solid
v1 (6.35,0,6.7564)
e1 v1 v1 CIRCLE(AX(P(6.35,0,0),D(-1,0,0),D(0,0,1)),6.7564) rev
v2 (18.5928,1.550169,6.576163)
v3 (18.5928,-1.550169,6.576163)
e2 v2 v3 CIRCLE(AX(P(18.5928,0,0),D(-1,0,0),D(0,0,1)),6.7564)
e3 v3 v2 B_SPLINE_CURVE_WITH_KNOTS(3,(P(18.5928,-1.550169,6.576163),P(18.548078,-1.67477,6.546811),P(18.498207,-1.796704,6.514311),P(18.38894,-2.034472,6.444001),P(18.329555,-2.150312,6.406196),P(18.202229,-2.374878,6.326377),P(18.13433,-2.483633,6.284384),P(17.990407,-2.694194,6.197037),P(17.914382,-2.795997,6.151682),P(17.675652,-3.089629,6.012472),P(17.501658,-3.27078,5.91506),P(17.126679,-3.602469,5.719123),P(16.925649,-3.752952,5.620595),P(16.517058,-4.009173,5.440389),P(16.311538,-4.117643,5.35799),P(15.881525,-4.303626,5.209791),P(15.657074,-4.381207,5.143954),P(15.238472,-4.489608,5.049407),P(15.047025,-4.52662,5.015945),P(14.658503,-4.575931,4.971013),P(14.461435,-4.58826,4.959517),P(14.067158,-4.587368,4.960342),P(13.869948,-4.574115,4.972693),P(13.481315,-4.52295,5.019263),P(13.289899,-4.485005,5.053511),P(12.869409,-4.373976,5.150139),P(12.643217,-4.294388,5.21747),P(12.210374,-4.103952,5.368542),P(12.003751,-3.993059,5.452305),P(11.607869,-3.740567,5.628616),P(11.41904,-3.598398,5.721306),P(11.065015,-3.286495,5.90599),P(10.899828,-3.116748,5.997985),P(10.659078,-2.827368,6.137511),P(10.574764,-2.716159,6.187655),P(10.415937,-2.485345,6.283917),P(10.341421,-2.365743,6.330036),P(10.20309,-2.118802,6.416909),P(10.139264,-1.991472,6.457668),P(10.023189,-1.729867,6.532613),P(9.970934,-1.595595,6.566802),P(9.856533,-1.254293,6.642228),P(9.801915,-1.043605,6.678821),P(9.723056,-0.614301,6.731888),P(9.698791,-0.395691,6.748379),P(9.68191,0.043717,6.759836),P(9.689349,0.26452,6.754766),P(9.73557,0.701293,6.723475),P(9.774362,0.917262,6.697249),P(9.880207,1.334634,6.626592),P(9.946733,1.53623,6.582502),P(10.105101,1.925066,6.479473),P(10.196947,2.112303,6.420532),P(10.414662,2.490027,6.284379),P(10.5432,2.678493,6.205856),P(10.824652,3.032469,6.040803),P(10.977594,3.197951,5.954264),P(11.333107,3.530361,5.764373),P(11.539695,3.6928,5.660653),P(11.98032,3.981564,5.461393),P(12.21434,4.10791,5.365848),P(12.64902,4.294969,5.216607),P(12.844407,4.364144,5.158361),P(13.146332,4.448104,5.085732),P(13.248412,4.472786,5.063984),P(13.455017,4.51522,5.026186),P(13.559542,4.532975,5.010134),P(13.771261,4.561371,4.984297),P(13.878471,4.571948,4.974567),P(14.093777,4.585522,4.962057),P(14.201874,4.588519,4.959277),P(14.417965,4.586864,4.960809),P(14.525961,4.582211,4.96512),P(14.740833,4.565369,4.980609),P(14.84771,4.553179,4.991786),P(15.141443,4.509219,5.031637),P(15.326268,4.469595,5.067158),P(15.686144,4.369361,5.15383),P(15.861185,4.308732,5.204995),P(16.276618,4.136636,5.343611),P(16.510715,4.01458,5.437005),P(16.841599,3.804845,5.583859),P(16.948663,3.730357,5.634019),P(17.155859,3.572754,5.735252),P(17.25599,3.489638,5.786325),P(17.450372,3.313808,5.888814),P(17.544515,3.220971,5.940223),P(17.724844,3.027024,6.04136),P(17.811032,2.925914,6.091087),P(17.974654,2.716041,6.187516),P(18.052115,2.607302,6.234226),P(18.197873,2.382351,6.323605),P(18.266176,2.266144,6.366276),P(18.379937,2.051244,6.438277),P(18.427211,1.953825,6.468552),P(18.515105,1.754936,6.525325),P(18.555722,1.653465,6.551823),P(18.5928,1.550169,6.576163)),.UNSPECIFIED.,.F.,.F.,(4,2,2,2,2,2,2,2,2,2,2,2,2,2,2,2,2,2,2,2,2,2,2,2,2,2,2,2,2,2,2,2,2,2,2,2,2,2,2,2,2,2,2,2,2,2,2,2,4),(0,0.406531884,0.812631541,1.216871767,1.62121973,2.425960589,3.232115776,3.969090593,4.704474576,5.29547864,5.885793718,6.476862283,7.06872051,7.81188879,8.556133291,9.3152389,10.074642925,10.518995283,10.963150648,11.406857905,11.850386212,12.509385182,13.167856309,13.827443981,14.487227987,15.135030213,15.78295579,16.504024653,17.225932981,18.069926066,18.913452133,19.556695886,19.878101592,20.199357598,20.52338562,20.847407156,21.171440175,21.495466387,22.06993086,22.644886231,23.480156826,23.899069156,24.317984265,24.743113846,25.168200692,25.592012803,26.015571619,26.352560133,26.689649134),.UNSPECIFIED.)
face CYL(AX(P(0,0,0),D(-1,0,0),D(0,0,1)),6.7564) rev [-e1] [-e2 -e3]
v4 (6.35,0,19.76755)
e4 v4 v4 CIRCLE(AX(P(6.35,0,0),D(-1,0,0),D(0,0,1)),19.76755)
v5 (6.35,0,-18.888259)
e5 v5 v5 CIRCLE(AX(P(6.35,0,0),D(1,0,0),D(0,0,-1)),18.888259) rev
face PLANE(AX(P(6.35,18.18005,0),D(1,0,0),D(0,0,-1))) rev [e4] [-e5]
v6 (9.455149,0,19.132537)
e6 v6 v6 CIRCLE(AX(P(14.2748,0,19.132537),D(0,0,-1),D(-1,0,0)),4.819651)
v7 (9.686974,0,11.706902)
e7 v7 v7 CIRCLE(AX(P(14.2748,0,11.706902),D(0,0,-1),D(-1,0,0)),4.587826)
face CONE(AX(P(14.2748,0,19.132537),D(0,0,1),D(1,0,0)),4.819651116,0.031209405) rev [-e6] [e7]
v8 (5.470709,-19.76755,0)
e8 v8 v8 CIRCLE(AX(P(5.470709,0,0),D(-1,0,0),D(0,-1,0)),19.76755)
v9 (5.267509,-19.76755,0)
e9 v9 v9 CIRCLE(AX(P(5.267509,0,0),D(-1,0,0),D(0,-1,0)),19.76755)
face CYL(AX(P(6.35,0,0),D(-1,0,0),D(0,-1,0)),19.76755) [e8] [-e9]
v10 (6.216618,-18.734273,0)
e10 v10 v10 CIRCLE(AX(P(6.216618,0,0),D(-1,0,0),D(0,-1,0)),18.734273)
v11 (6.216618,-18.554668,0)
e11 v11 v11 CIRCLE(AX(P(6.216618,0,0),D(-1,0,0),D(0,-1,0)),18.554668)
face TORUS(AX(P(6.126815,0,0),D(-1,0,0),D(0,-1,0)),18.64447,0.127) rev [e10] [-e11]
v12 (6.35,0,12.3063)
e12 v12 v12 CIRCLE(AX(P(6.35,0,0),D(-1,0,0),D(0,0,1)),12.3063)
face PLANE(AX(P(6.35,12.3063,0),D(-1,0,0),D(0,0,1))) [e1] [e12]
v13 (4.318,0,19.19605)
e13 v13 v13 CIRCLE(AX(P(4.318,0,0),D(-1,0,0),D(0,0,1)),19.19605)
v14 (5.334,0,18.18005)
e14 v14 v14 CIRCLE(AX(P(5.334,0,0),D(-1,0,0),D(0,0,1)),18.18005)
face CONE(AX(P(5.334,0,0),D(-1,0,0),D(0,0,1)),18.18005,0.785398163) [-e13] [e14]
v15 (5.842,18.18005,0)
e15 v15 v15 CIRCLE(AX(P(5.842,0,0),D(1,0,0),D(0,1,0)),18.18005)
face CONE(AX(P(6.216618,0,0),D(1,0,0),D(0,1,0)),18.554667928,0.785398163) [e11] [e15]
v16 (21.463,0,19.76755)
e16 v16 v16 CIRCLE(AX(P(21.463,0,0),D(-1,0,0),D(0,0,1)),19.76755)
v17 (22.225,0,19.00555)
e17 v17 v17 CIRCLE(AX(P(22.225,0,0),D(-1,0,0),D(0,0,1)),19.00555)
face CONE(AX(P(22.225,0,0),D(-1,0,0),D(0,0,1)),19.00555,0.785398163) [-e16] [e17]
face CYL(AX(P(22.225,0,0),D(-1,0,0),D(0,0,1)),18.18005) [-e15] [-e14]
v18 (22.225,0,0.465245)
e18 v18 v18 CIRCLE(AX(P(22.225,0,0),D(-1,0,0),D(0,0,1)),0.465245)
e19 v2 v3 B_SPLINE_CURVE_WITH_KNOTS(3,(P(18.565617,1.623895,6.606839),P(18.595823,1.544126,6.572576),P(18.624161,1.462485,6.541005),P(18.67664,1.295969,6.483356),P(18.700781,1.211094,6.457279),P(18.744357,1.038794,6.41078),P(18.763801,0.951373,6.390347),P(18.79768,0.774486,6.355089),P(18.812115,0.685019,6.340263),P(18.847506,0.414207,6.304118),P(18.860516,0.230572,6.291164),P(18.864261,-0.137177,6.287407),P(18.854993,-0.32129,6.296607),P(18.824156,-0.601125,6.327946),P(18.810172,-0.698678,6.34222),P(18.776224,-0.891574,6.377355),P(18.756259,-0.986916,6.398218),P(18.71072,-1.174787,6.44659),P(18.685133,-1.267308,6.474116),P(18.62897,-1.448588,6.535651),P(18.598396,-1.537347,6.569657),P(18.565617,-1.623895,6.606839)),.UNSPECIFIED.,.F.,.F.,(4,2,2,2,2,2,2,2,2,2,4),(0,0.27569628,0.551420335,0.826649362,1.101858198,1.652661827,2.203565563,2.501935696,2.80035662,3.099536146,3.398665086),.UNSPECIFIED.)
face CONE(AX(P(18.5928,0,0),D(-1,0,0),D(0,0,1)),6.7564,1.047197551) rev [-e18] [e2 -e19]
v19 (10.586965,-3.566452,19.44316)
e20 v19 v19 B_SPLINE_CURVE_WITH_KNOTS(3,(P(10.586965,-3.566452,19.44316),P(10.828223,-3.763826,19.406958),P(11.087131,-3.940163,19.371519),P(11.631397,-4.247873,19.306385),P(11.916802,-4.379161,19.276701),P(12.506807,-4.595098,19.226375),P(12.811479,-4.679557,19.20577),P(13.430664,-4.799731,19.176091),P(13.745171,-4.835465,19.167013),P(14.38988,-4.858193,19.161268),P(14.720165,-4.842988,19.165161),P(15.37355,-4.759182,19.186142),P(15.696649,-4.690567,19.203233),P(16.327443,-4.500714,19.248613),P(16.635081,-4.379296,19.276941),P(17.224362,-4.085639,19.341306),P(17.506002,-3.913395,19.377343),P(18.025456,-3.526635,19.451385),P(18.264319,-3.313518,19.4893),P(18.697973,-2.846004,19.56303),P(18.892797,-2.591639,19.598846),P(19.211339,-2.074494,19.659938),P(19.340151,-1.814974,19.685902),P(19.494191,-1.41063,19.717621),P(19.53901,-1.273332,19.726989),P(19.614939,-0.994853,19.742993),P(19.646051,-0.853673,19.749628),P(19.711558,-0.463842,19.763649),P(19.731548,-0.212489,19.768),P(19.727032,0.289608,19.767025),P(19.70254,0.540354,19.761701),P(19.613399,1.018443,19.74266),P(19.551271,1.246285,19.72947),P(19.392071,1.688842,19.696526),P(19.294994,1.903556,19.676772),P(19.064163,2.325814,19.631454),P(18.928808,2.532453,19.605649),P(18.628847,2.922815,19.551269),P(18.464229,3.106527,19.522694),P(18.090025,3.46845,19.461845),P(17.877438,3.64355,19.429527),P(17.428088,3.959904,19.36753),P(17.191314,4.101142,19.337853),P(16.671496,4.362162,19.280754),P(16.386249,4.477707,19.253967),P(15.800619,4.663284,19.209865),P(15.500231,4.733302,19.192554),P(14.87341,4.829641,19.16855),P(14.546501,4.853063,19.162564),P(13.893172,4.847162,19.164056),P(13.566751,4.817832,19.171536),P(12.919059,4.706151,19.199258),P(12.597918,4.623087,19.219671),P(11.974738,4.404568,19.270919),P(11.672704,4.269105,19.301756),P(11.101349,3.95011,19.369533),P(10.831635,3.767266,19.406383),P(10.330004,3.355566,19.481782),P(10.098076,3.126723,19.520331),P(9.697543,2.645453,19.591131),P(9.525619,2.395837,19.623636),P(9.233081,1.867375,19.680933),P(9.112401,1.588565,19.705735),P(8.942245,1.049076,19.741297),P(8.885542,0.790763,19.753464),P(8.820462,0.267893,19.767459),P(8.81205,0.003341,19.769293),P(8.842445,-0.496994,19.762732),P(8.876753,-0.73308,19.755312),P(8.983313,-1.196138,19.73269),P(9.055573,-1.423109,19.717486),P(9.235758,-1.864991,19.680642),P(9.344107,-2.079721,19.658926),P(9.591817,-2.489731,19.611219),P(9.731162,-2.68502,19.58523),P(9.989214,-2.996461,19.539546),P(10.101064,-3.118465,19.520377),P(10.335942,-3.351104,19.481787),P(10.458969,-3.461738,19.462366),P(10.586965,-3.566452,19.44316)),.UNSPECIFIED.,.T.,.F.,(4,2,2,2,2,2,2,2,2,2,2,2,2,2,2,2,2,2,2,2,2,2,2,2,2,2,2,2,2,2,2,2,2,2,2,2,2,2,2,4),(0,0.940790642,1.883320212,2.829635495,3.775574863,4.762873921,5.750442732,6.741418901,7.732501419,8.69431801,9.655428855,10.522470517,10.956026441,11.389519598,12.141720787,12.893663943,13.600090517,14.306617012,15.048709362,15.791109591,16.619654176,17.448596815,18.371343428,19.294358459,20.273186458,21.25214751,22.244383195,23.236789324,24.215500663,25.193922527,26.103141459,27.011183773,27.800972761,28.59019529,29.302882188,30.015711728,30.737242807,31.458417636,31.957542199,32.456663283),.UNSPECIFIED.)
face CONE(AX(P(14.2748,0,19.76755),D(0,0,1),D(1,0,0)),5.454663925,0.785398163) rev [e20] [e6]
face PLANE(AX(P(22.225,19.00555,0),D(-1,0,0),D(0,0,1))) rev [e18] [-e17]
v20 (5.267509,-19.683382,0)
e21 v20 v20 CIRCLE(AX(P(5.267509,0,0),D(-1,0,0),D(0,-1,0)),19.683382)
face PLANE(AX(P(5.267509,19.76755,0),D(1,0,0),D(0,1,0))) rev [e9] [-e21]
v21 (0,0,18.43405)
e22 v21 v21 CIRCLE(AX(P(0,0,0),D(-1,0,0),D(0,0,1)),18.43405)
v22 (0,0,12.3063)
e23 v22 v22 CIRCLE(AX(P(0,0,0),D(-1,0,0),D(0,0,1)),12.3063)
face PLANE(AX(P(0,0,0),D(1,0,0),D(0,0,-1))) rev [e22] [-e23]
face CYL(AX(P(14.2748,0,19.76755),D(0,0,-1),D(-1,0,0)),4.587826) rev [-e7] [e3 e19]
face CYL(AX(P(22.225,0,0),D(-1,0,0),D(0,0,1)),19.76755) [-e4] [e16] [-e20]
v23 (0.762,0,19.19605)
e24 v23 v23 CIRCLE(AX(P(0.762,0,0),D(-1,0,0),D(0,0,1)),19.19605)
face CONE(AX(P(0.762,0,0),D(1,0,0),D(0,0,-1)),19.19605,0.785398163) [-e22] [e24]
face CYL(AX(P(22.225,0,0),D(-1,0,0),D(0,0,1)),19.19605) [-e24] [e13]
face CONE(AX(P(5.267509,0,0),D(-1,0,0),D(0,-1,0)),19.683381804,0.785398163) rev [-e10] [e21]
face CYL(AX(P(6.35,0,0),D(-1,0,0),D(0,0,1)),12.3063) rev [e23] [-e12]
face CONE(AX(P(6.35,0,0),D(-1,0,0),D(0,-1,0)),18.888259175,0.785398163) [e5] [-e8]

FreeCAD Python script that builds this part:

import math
import FreeCAD as App
import Part
import Sketcher

V = App.Vector
Q = App.Units.Quantity

doc = App.newDocument("Part")
body = doc.addObject("PartDesign::Body", "Body")

# Sketch on XY plane
sketch1 = body.newObject("Sketcher::SketchObject", "Sketch")
sketch1.AttachmentSupport = (doc.getObject("XY_Plane"), [""])
sketch1.MapMode = "FlatFace"
sketch1.addGeometry(Part.LineSegment(V(0, 18.4, 0), V(0, 0, 0)), False)
sketch1.addGeometry(Part.LineSegment(V(0, 0, 0), V(22.2, 0, 0)), False)
sketch1.addGeometry(Part.LineSegment(V(22.2, 0, 0), V(22.2, 19, 0)), False)
sketch1.addGeometry(Part.LineSegment(V(22.2, 19, 0), V(21.5, 19.8, 0)), False)
sketch1.addGeometry(Part.LineSegment(V(21.5, 19.8, 0), V(6.3, 19.8, 0)), False)
sketch1.addGeometry(Part.LineSegment(V(6.3, 19.8, 0), V(6.3, 18.2, 0)), False)
sketch1.addGeometry(Part.LineSegment(V(6.3, 18.2, 0), V(5.3, 18.2, 0)), False)
sketch1.addGeometry(Part.LineSegment(V(5.3, 18.2, 0), V(4.3, 19.2, 0)), False)
sketch1.addGeometry(Part.LineSegment(V(4.3, 19.2, 0), V(0.8, 19.2, 0)), False)
sketch1.addGeometry(Part.LineSegment(V(0.8, 19.2, 0), V(0, 18.4, 0)), False)
sketch1.addConstraint(Sketcher.Constraint("Coincident", 0, 2, 1, 1))
sketch1.addConstraint(Sketcher.Constraint("Coincident", 1, 2, 2, 1))
sketch1.addConstraint(Sketcher.Constraint("Coincident", 2, 2, 3, 1))
sketch1.addConstraint(Sketcher.Constraint("Coincident", 3, 2, 4, 1))
sketch1.addConstraint(Sketcher.Constraint("Coincident", 4, 2, 5, 1))
sketch1.addConstraint(Sketcher.Constraint("Coincident", 5, 2, 6, 1))
sketch1.addConstraint(Sketcher.Constraint("Coincident", 6, 2, 7, 1))
sketch1.addConstraint(Sketcher.Constraint("Coincident", 7, 2, 8, 1))
sketch1.addConstraint(Sketcher.Constraint("Coincident", 8, 2, 9, 1))
sketch1.addConstraint(Sketcher.Constraint("Coincident", 9, 2, 0, 1))
sketch1.addConstraint(Sketcher.Constraint("Vertical", 0))
sketch1.addConstraint(Sketcher.Constraint("Horizontal", 1))
sketch1.addConstraint(Sketcher.Constraint("Vertical", 2))
sketch1.addConstraint(Sketcher.Constraint("Horizontal", 4))
sketch1.addConstraint(Sketcher.Constraint("Vertical", 5))
sketch1.addConstraint(Sketcher.Constraint("Horizontal", 6))
sketch1.addConstraint(Sketcher.Constraint("Horizontal", 8))
sketch1.addConstraint(Sketcher.Constraint("Coincident", 0, 2, -1, 1))
sketch1.addConstraint(Sketcher.Constraint("Parallel", 3, 7))
sketch1.addConstraint(Sketcher.Constraint("Perpendicular", 7, 9))
sketch1.addConstraint(Sketcher.Constraint("Equal", 3, 9))
sketch1.addConstraint(Sketcher.Constraint("Angle", 3, Q("135 deg")))
sketch1.addConstraint(Sketcher.Constraint("DistanceX", 6, 2, 6, 1, Q("0.04 in")))
sketch1.addConstraint(Sketcher.Constraint("DistanceX", 8, 2, 8, 1, Q("0.14 in")))
sketch1.addConstraint(Sketcher.Constraint("DistanceX", 1, 1, 1, 2, Q("0.875 in")))
sketch1.addConstraint(Sketcher.Constraint("DistanceX", 4, 2, 4, 1, Q("0.595 in")))
sketch1.addConstraint(Sketcher.Constraint("DistanceY", 5, 2, 5, 1, Q("0.0625 in")))
sketch1.addConstraint(Sketcher.Constraint("DistanceX", -1, 1, 4, 2, Q("0.25 in")))
sketch1.addConstraint(Sketcher.Constraint("DistanceY", 0, 2, 0, 1, 18.43405))
revolution = body.newObject("PartDesign::Revolution", "Revolution")
revolution.Profile = sketch1
revolution.ReferenceAxis = (sketch1, ["H_Axis"])
revolution.Angle = 360

# Sketch on YZ plane
sketch2 = body.newObject("Sketcher::SketchObject", "Sketch001")
sketch2.AttachmentSupport = (doc.getObject("YZ_Plane"), [""])
sketch2.MapMode = "FlatFace"
sketch2.addGeometry(Part.Circle(V(0, 0, 0), V(0, 0, 1), 7), False)
sketch2.addConstraint(Sketcher.Constraint("Coincident", 0, 3, -1, 1))
sketch2.addConstraint(Sketcher.Constraint("Diameter", 0, Q("0.532 in")))
doc.recompute()
hole = body.newObject("PartDesign::Hole", "Hole")
hole.Profile = sketch2
hole.ThreadType = "None"
hole.Diameter = Q("0.532 in")
hole.DepthType = "Dimension"
hole.Depth = Q("0.732 in")
hole.DrillPoint = "Angled"
hole.DrillPointAngle = 120
hole.Reversed = True

# Sketch on XZ plane
sketch3 = body.newObject("Sketcher::SketchObject", "Sketch002")
sketch3.AttachmentSupport = (doc.getObject("XZ_Plane"), [""])
sketch3.MapMode = "FlatFace"
sketch3.addGeometry(Part.LineSegment(V(18.9, 0, 0), V(14.3, 0, 0)), False)
sketch3.addGeometry(Part.LineSegment(V(14.3, 0, 0), V(14.3, 19.8, 0)), False)
sketch3.addGeometry(Part.LineSegment(V(14.3, 19.8, 0), V(19.7, 19.8, 0)), False)
sketch3.addGeometry(Part.LineSegment(V(19.7, 19.8, 0), V(19.1, 19.1, 0)), False)
sketch3.addGeometry(Part.LineSegment(V(19.1, 19.1, 0), V(18.9, 11.7, 0)), False)
sketch3.addGeometry(Part.LineSegment(V(18.9, 11.7, 0), V(18.9, 0, 0)), False)
sketch3.addGeometry(Part.LineSegment(V(14.3, 19.8, 0), V(14.3, 0, 0)), True)  # axis
sketch3.addConstraint(Sketcher.Constraint("Coincident", 0, 2, 1, 1))
sketch3.addConstraint(Sketcher.Constraint("Coincident", 1, 2, 2, 1))
sketch3.addConstraint(Sketcher.Constraint("Coincident", 2, 2, 3, 1))
sketch3.addConstraint(Sketcher.Constraint("Coincident", 3, 2, 4, 1))
sketch3.addConstraint(Sketcher.Constraint("Coincident", 4, 2, 5, 1))
sketch3.addConstraint(Sketcher.Constraint("Coincident", 5, 2, 0, 1))
sketch3.addConstraint(Sketcher.Constraint("Horizontal", 0))
sketch3.addConstraint(Sketcher.Constraint("Vertical", 1))
sketch3.addConstraint(Sketcher.Constraint("Horizontal", 2))
sketch3.addConstraint(Sketcher.Constraint("Vertical", 5))
sketch3.addConstraint(Sketcher.Constraint("Vertical", 6))
sketch3.addConstraint(Sketcher.Constraint("Coincident", 6, 1, 1, 2))
sketch3.addConstraint(Sketcher.Constraint("PointOnObject", 0, 2, -1))
sketch3.addConstraint(Sketcher.Constraint("PointOnObject", 6, 2, -1))
sketch3.addConstraint(Sketcher.Constraint("Angle", 3, Q("-135 deg")))
sketch3.addConstraint(Sketcher.Constraint("DistanceX", -1, 1, 0, 2, Q("0.562 in")))
sketch3.addConstraint(Sketcher.Constraint("DistanceY", 5, 2, 5, 1, 11.706902))
sketch3.addConstraint(Sketcher.Constraint("DistanceY", 1, 1, 1, 2, 19.76755))
sketch3.addConstraint(Sketcher.Constraint("DistanceX", 0, 2, 0, 1, 4.587826))
sketch3.addConstraint(Sketcher.Constraint("DistanceX", 2, 1, 2, 2, 5.454664))
sketch3.addConstraint(Sketcher.Constraint("DistanceX", -1, 1, 3, 2, 19.094451))
groove = body.newObject("PartDesign::Groove", "Groove")
groove.Profile = sketch3
groove.ReferenceAxis = (sketch3, ["Axis0"])
groove.Angle = 360

# Sketch on XY plane
sketch4 = body.newObject("Sketcher::SketchObject", "Sketch003")
sketch4.AttachmentSupport = (doc.getObject("XY_Plane"), [""])
sketch4.MapMode = "FlatFace"
sketch4.addGeometry(Part.LineSegment(V(0, 12, 0), V(0, 0, 0)), False)
sketch4.addGeometry(Part.LineSegment(V(0, 0, 0), V(6, 0, 0)), False)
sketch4.addGeometry(Part.LineSegment(V(6, 0, 0), V(6, 12, 0)), False)
sketch4.addGeometry(Part.LineSegment(V(6, 12, 0), V(0, 12, 0)), False)
sketch4.addConstraint(Sketcher.Constraint("Coincident", 0, 2, 1, 1))
sketch4.addConstraint(Sketcher.Constraint("Coincident", 1, 2, 2, 1))
sketch4.addConstraint(Sketcher.Constraint("Coincident", 2, 2, 3, 1))
sketch4.addConstraint(Sketcher.Constraint("Coincident", 3, 2, 0, 1))
sketch4.addConstraint(Sketcher.Constraint("Vertical", 0))
sketch4.addConstraint(Sketcher.Constraint("Horizontal", 1))
sketch4.addConstraint(Sketcher.Constraint("Vertical", 2))
sketch4.addConstraint(Sketcher.Constraint("Horizontal", 3))
sketch4.addConstraint(Sketcher.Constraint("Coincident", 0, 2, -1, 1))
sketch4.addConstraint(Sketcher.Constraint("DistanceX", 1, 1, 1, 2, Q("0.25 in")))
sketch4.addConstraint(Sketcher.Constraint("DistanceY", 0, 2, 0, 1, Q("0.4845 in")))
groove2 = body.newObject("PartDesign::Groove", "Groove001")
groove2.Profile = sketch4
groove2.ReferenceAxis = (sketch4, ["H_Axis"])
groove2.Angle = 360

# Sketch on XY plane
sketch5 = body.newObject("Sketcher::SketchObject", "Sketch004")
sketch5.AttachmentSupport = (doc.getObject("XY_Plane"), [""])
sketch5.MapMode = "FlatFace"
sketch5.addGeometry(Part.LineSegment(V(5.27, 19.68, 0), V(6.22, 18.73, 0)), False)
sketch5.addGeometry(Part.ArcOfCircle(Part.Circle(V(6.13, 18.64, 0), V(0, 0, 1), 0.13), math.radians(-45), math.radians(45)), False)
sketch5.addGeometry(Part.LineSegment(V(6.22, 18.55, 0), V(5.84, 18.18, 0)), False)
sketch5.addGeometry(Part.LineSegment(V(5.84, 18.18, 0), V(5.33, 18.18, 0)), False)
sketch5.addGeometry(Part.LineSegment(V(5.33, 18.18, 0), V(5.33, 17.93, 0)), False)
sketch5.addGeometry(Part.LineSegment(V(5.33, 17.93, 0), V(6.35, 17.93, 0)), False)
sketch5.addGeometry(Part.LineSegment(V(6.35, 17.93, 0), V(6.35, 18.89, 0)), False)
sketch5.addGeometry(Part.LineSegment(V(6.35, 18.89, 0), V(5.47, 19.77, 0)), False)
sketch5.addGeometry(Part.LineSegment(V(5.47, 19.77, 0), V(5.27, 19.77, 0)), False)
sketch5.addGeometry(Part.LineSegment(V(5.27, 19.77, 0), V(5.27, 19.68, 0)), False)
sketch5.addConstraint(Sketcher.Constraint("Tangent", 0, 2, 1, 2))
sketch5.addConstraint(Sketcher.Constraint("Tangent", 1, 1, 2, 1))
sketch5.addConstraint(Sketcher.Constraint("Coincident", 2, 2, 3, 1))
sketch5.addConstraint(Sketcher.Constraint("Coincident", 3, 2, 4, 1))
sketch5.addConstraint(Sketcher.Constraint("Coincident", 4, 2, 5, 1))
sketch5.addConstraint(Sketcher.Constraint("Coincident", 5, 2, 6, 1))
sketch5.addConstraint(Sketcher.Constraint("Coincident", 6, 2, 7, 1))
sketch5.addConstraint(Sketcher.Constraint("Coincident", 7, 2, 8, 1))
sketch5.addConstraint(Sketcher.Constraint("Coincident", 8, 2, 9, 1))
sketch5.addConstraint(Sketcher.Constraint("Coincident", 9, 2, 0, 1))
sketch5.addConstraint(Sketcher.Constraint("Horizontal", 3))
sketch5.addConstraint(Sketcher.Constraint("Vertical", 4))
sketch5.addConstraint(Sketcher.Constraint("Horizontal", 5))
sketch5.addConstraint(Sketcher.Constraint("Vertical", 6))
sketch5.addConstraint(Sketcher.Constraint("Horizontal", 8))
sketch5.addConstraint(Sketcher.Constraint("Vertical", 9))
sketch5.addConstraint(Sketcher.Constraint("Perpendicular", 0, 2))
sketch5.addConstraint(Sketcher.Constraint("Perpendicular", 2, 7))
sketch5.addConstraint(Sketcher.Constraint("Vertical", 0, 2, 1, 1))
sketch5.addConstraint(Sketcher.Constraint("Radius", 1, Q("0.005 in")))
sketch5.addConstraint(Sketcher.Constraint("DistanceX", 3, 2, 3, 1, Q("0.02 in")))
sketch5.addConstraint(Sketcher.Constraint("DistanceX", 5, 1, 5, 2, Q("0.04 in")))
sketch5.addConstraint(Sketcher.Constraint("DistanceY", 4, 2, 4, 1, Q("0.01 in")))
sketch5.addConstraint(Sketcher.Constraint("DistanceX", 8, 2, 8, 1, Q("0.008 in")))
sketch5.addConstraint(Sketcher.Constraint("DistanceX", -1, 1, 2, 2, Q("0.23 in")))
sketch5.addConstraint(Sketcher.Constraint("DistanceY", 3, 2, 7, 2, Q("0.0625 in")))
sketch5.addConstraint(Sketcher.Constraint("DistanceY", 6, 1, 6, 2, 0.962209))
sketch5.addConstraint(Sketcher.Constraint("DistanceY", 9, 2, 9, 1, 0.084168))
sketch5.addConstraint(Sketcher.Constraint("DistanceY", -1, 1, 1, 3, 18.64447))
revolution2 = body.newObject("PartDesign::Revolution", "Revolution001")
revolution2.Profile = sketch5
revolution2.ReferenceAxis = (sketch5, ["H_Axis"])
revolution2.Angle = 360

doc.recompute()
